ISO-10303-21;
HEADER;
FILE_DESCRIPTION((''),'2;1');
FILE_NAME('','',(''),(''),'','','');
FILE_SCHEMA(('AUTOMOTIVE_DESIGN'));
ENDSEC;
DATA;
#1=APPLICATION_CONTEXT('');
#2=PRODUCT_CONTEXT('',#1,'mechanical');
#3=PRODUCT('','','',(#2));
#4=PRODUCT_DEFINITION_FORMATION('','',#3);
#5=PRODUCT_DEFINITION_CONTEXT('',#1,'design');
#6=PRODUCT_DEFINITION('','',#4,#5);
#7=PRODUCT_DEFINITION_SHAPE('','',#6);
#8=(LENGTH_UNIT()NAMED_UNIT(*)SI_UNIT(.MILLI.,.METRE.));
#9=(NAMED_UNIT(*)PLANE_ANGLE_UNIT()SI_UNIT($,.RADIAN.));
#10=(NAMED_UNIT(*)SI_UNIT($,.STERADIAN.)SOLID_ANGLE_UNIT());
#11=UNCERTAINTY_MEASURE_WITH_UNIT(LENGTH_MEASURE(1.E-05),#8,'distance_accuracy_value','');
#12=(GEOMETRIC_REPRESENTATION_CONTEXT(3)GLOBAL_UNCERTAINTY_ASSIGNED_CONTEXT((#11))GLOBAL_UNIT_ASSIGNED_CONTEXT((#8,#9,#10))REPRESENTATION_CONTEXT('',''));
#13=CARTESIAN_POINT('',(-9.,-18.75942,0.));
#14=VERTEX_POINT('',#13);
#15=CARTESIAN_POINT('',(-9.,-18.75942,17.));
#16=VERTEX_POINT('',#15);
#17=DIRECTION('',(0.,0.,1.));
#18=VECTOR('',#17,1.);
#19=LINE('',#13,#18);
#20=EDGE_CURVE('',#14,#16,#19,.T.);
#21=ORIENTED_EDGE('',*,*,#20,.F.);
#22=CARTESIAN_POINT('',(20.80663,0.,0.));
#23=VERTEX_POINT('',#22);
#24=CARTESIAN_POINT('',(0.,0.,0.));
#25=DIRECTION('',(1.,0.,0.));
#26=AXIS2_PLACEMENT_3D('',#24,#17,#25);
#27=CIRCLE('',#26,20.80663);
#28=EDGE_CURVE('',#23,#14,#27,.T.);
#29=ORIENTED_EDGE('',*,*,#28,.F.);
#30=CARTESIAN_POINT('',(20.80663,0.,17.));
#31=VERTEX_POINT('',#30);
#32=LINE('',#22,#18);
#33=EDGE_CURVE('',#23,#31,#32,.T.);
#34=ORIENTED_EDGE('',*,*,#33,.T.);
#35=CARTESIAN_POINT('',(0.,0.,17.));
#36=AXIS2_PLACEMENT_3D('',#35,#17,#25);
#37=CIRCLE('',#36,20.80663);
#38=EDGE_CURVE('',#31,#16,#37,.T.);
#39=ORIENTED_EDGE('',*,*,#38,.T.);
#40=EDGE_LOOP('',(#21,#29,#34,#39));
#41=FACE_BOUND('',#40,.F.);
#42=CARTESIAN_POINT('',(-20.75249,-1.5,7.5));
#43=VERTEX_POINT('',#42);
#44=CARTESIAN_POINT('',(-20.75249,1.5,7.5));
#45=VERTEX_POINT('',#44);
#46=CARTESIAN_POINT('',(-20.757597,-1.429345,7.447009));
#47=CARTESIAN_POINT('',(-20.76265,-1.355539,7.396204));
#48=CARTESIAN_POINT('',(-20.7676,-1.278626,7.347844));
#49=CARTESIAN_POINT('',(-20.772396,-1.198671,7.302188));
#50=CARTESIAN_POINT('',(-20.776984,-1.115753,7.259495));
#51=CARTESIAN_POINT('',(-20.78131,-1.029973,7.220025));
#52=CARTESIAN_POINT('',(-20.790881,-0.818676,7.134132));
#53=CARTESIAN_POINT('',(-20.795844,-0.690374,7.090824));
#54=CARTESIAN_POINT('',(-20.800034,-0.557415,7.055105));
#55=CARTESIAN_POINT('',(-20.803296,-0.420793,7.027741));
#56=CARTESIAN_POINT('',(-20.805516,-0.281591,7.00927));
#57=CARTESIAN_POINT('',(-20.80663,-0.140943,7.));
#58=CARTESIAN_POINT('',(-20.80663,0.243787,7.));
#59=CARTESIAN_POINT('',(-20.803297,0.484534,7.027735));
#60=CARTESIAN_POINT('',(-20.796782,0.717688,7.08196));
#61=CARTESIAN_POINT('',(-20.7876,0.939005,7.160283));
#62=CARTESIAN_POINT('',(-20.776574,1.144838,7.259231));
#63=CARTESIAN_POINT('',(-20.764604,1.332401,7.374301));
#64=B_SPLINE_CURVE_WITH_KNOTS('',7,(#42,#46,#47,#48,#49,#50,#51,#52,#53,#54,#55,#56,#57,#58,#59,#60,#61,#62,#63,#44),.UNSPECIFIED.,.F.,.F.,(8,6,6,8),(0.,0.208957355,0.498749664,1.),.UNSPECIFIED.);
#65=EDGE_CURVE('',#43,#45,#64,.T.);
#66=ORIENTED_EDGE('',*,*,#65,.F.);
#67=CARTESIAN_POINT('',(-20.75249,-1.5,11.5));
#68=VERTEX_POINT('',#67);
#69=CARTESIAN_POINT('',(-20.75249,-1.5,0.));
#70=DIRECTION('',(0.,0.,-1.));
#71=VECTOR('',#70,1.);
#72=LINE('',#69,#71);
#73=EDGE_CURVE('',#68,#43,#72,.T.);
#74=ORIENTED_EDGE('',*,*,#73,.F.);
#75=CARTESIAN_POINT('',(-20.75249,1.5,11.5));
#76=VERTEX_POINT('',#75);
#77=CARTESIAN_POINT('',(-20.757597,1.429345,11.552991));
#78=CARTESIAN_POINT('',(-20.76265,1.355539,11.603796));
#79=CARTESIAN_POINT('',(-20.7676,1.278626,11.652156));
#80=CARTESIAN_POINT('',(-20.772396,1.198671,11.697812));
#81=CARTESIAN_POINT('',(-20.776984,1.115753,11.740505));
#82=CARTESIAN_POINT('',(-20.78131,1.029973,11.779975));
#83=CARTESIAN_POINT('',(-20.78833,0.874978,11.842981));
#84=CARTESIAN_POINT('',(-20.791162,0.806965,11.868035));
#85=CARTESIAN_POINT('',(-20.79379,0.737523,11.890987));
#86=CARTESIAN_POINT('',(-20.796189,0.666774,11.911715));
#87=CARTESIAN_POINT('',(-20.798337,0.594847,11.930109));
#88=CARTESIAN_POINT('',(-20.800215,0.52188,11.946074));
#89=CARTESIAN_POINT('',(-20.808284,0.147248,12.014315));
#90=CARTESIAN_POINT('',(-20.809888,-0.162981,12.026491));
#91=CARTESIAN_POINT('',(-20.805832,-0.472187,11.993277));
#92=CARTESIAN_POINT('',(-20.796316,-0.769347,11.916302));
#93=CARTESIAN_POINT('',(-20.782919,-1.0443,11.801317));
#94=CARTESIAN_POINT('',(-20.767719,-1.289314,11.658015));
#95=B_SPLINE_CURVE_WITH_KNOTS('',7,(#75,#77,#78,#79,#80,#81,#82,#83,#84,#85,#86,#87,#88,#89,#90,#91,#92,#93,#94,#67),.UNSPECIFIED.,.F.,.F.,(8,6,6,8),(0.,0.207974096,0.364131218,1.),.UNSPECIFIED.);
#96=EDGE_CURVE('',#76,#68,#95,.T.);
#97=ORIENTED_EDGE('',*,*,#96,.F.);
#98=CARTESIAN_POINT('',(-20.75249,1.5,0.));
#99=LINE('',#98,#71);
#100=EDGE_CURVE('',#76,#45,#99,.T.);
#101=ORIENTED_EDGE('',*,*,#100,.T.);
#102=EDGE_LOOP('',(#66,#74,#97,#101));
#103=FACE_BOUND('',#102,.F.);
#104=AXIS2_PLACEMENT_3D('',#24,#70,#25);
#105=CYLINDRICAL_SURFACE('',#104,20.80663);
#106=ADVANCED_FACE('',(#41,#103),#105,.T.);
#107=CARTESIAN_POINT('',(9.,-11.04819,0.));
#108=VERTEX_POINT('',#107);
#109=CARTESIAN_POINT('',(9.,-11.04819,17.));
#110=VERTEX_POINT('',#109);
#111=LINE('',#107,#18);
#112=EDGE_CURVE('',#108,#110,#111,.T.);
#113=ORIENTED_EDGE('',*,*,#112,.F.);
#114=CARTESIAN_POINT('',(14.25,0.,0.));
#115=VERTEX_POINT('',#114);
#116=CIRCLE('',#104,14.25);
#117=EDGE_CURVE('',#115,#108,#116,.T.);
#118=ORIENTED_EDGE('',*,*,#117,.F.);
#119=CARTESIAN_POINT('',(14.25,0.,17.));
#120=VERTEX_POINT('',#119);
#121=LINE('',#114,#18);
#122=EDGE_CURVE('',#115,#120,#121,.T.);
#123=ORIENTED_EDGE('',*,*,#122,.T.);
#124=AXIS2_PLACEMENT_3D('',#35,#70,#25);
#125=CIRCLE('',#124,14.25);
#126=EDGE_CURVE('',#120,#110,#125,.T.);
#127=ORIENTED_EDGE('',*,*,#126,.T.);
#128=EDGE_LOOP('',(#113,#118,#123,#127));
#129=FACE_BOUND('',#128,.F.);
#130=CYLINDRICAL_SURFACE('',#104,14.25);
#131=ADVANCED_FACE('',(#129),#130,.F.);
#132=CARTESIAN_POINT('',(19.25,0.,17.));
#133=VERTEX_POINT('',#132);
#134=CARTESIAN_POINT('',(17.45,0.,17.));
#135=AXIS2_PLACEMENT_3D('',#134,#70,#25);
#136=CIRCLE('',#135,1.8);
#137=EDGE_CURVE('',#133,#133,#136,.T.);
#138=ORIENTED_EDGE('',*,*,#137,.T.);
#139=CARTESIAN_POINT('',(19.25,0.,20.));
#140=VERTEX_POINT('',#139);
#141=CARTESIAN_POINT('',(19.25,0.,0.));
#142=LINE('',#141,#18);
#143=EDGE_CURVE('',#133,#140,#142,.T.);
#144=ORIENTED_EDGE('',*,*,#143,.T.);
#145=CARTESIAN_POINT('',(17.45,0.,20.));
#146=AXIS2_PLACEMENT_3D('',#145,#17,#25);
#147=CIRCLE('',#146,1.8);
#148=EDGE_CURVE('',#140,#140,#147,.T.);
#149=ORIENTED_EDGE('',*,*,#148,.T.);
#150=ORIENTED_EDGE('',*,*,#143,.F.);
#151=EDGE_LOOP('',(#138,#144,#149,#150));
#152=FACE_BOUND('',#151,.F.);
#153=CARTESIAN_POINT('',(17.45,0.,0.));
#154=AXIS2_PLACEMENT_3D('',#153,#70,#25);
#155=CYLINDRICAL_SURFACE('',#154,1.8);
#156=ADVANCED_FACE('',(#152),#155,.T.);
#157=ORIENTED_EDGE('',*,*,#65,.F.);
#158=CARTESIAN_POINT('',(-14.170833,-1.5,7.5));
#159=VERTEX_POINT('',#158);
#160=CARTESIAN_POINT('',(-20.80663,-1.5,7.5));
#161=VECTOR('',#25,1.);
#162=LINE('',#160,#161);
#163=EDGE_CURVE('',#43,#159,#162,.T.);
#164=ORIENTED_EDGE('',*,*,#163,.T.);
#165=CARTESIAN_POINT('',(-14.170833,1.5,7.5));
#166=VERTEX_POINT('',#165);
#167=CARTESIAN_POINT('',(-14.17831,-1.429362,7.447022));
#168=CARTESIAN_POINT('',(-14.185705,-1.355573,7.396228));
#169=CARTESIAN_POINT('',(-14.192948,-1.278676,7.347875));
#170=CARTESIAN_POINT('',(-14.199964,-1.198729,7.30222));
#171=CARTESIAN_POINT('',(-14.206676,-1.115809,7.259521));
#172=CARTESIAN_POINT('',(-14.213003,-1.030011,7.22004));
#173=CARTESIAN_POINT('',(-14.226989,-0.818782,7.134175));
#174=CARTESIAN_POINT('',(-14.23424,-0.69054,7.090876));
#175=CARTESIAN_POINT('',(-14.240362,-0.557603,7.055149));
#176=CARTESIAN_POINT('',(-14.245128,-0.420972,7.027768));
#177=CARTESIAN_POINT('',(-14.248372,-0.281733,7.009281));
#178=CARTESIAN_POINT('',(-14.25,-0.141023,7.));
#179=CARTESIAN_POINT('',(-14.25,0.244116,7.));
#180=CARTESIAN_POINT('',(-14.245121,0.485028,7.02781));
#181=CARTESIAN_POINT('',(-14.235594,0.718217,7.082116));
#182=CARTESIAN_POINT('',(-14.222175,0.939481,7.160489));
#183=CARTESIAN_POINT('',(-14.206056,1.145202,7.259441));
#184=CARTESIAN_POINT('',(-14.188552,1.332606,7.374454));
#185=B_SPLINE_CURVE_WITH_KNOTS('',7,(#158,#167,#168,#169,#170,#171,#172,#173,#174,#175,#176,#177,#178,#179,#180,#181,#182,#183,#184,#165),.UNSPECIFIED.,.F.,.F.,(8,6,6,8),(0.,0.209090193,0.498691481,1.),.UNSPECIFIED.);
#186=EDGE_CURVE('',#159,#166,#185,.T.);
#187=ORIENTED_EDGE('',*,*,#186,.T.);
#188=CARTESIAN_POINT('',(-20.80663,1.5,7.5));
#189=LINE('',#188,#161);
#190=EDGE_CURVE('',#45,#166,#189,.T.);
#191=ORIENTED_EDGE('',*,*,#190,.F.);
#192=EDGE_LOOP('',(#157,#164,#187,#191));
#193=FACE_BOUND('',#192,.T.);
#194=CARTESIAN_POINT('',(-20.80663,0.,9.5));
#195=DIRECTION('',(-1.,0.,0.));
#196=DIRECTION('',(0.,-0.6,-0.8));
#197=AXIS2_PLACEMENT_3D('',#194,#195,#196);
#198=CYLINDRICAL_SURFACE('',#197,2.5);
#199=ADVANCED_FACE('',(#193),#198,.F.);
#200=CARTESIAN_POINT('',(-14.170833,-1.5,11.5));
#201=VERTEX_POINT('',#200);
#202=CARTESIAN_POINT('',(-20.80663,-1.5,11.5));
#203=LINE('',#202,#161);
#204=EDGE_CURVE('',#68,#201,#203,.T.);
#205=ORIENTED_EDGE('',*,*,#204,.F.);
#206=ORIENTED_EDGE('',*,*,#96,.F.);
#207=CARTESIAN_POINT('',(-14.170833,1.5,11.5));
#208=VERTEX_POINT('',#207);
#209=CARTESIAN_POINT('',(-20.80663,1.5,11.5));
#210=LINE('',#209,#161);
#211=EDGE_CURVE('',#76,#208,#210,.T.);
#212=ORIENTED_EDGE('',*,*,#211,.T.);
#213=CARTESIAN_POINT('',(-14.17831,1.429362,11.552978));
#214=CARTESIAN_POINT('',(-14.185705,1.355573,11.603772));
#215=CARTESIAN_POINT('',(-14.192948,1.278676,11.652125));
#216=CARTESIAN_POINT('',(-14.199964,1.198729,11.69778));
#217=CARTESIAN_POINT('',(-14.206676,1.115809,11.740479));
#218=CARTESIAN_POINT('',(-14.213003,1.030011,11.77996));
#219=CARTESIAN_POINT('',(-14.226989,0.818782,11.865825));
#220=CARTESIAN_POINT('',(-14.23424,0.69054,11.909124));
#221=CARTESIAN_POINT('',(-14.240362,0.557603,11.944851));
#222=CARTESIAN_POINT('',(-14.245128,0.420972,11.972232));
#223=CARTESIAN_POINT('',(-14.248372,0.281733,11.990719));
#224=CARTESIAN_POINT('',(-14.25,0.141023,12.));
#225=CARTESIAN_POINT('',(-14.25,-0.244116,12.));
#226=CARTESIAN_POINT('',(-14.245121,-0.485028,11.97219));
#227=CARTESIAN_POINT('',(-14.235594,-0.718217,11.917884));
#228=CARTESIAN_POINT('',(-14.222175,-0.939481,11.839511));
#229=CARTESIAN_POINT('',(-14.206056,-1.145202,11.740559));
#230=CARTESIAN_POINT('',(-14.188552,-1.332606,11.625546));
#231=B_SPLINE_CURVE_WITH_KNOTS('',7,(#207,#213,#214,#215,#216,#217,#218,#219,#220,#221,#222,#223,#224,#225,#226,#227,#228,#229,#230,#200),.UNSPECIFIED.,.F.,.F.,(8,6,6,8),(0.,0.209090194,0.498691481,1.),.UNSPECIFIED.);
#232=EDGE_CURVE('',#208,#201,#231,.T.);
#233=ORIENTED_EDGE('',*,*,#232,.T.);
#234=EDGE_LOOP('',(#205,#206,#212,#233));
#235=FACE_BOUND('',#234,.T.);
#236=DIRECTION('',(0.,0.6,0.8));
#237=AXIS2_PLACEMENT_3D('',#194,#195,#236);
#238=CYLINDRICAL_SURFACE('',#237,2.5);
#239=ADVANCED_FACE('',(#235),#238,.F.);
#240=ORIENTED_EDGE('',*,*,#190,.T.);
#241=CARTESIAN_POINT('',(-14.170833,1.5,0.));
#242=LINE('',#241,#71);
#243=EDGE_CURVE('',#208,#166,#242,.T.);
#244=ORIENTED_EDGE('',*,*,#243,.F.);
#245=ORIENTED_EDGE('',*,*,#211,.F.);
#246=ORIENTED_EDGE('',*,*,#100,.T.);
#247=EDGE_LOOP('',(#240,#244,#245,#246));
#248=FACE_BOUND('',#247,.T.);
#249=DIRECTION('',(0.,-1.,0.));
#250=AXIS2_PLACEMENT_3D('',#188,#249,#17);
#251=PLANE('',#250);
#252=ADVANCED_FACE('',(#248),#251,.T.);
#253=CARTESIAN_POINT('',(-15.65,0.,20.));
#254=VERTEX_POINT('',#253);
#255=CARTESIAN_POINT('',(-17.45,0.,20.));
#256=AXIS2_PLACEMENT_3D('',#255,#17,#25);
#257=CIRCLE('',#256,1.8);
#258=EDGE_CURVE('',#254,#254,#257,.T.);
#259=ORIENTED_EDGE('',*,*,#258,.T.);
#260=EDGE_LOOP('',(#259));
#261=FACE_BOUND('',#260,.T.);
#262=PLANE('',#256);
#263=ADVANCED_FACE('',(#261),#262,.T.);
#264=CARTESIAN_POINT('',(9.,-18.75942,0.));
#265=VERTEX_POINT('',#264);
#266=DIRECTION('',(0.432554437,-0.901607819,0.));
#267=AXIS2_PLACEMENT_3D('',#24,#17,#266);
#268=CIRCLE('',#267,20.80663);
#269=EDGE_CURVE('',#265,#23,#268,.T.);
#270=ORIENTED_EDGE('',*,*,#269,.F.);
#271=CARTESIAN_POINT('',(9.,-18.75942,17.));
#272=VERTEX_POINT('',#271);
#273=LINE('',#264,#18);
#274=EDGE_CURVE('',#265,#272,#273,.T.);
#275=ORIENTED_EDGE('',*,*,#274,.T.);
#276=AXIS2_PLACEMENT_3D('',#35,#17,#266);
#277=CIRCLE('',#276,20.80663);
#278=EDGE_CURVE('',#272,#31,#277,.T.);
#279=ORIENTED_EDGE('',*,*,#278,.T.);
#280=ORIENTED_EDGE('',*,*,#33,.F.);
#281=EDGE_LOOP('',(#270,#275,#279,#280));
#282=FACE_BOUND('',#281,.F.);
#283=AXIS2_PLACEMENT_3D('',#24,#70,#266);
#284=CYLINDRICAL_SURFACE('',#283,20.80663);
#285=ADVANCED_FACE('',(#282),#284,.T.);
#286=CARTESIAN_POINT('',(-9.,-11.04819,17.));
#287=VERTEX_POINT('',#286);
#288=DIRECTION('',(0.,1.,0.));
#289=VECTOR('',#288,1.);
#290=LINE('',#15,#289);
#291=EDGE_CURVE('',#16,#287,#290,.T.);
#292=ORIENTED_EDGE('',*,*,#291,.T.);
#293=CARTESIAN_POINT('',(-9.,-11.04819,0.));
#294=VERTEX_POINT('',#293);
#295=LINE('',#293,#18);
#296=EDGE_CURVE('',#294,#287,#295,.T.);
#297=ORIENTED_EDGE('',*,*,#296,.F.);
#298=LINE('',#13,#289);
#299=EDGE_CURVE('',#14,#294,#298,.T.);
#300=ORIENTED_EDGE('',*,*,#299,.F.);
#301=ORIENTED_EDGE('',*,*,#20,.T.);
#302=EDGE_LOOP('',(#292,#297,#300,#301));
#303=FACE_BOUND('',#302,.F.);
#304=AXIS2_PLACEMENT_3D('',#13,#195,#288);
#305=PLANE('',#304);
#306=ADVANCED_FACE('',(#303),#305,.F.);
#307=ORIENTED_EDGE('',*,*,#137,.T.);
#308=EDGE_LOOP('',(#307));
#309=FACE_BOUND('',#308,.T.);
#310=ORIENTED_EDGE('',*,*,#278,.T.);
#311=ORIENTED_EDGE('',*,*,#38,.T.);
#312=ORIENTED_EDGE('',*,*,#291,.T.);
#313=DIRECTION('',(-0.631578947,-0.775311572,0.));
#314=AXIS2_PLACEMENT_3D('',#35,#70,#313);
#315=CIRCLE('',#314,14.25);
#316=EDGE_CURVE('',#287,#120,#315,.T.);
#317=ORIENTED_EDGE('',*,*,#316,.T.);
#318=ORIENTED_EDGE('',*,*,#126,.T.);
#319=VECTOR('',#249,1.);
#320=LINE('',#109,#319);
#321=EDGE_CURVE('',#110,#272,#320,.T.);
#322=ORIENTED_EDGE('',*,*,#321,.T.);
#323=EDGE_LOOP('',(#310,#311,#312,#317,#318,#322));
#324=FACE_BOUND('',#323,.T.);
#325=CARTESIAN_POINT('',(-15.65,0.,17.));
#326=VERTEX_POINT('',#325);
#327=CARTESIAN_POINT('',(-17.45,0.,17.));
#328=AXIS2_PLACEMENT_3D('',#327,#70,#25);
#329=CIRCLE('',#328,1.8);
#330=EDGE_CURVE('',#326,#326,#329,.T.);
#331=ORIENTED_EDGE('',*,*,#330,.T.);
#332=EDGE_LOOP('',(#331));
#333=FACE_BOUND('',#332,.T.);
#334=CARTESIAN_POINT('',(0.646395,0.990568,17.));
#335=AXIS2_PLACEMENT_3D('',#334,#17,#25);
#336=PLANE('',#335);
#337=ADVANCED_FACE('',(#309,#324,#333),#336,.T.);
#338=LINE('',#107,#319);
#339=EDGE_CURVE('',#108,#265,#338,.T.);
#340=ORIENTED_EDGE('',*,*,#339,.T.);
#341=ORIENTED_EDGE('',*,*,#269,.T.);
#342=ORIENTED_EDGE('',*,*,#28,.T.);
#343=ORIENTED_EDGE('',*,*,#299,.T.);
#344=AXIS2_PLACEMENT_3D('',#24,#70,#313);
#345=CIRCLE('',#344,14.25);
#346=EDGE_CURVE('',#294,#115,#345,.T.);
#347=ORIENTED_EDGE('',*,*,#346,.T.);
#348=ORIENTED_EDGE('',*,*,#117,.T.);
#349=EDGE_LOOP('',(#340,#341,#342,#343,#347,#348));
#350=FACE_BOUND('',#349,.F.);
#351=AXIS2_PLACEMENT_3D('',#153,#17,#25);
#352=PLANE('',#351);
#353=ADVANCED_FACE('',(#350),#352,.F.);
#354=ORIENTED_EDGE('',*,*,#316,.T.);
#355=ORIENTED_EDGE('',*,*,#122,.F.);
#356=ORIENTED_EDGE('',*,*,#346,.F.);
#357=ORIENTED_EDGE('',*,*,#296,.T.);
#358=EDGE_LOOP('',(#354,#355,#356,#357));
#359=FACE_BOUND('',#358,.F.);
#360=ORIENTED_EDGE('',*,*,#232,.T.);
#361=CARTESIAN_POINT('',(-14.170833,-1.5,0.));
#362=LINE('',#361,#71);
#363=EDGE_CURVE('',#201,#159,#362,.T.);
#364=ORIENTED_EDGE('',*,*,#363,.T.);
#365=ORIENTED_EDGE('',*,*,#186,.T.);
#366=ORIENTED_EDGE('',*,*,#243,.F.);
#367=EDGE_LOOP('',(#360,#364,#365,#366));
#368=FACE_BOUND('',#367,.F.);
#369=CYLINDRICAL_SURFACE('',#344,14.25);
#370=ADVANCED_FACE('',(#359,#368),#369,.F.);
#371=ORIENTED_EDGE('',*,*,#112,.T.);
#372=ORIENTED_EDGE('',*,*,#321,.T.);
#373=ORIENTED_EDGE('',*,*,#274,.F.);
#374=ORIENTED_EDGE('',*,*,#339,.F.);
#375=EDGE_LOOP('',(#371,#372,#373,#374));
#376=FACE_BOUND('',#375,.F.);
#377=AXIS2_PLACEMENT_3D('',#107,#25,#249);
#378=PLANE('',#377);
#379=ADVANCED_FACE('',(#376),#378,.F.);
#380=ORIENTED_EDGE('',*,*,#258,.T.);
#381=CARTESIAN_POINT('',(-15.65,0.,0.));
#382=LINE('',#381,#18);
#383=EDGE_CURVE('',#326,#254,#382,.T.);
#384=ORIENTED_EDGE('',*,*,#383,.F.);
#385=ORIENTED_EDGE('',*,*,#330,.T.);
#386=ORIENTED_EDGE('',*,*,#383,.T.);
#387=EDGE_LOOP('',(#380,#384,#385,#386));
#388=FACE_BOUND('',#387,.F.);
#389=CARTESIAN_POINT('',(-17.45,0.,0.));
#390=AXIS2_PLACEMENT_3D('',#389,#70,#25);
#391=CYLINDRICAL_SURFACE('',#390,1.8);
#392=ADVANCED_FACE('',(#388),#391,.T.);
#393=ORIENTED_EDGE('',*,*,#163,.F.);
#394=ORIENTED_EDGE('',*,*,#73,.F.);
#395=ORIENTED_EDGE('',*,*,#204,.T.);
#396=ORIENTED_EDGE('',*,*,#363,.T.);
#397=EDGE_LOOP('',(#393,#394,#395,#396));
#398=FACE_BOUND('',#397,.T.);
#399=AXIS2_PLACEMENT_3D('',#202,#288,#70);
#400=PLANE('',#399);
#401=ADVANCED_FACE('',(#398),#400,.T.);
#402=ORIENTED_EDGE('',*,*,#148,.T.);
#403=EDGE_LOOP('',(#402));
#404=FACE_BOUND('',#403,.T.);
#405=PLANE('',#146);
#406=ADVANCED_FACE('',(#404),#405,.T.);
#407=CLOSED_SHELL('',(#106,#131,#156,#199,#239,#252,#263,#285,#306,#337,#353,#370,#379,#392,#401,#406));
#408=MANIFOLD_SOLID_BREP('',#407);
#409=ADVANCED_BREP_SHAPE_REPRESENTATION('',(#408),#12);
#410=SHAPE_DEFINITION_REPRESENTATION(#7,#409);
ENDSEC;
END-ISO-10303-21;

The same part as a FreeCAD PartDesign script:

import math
import FreeCAD as App
import Part
import Sketcher
from FreeCAD import Vector
Q = App.Units.Quantity

doc = App.newDocument("Part")
body = doc.addObject("PartDesign::Body", "Body")

# Sketch on XY plane
sketch1 = doc.addObject("Sketcher::SketchObject", "Sketch")
body.addObject(sketch1)
sketch1.AttachmentSupport = (doc.XY_Plane, [""])
sketch1.MapMode = "FlatFace"
sketch1.addGeometry(Part.ArcOfCircle(Part.Circle(Vector(0, 0, 0), Vector(0, 0, 1), 14), math.radians(0), math.radians(231)), False)
sketch1.addGeometry(Part.ArcOfCircle(Part.Circle(Vector(0, 0, 0), Vector(0, 0, 1), 14), math.radians(-51), math.radians(0)), False)
sketch1.addGeometry(Part.LineSegment(Vector(9, -11, 0), Vector(9, -19, 0)), False)
sketch1.addGeometry(Part.ArcOfCircle(Part.Circle(Vector(0, 0, 0), Vector(0, 0, 1), 21), math.radians(-64), math.radians(0)), False)
sketch1.addGeometry(Part.ArcOfCircle(Part.Circle(Vector(0, 0, 0), Vector(0, 0, 1), 21), math.radians(0), math.radians(244)), False)
sketch1.addGeometry(Part.LineSegment(Vector(-9, -19, 0), Vector(-9, -11, 0)), False)
sketch1.addConstraint(Sketcher.Constraint("Tangent", 0, 1, 1, 2))
sketch1.addConstraint(Sketcher.Constraint("Coincident", 1, 1, 2, 1))
sketch1.addConstraint(Sketcher.Constraint("Coincident", 2, 2, 3, 1))
sketch1.addConstraint(Sketcher.Constraint("Tangent", 3, 2, 4, 1))
sketch1.addConstraint(Sketcher.Constraint("Coincident", 4, 2, 5, 1))
sketch1.addConstraint(Sketcher.Constraint("Coincident", 5, 2, 0, 2))
sketch1.addConstraint(Sketcher.Constraint("Vertical", 2))
sketch1.addConstraint(Sketcher.Constraint("Vertical", 5))
sketch1.addConstraint(Sketcher.Constraint("Coincident", 0, 3, -1, 1))
sketch1.addConstraint(Sketcher.Constraint("Coincident", 3, 3, -1, 1))
sketch1.addConstraint(Sketcher.Constraint("Equal", 0, 1))
sketch1.addConstraint(Sketcher.Constraint("Equal", 3, 4))
sketch1.addConstraint(Sketcher.Constraint("PointOnObject", 0, 1, -1))
sketch1.addConstraint(Sketcher.Constraint("PointOnObject", 3, 2, -1))
sketch1.addConstraint(Sketcher.Constraint("Horizontal", 2, 2, 4, 2))
sketch1.addConstraint(Sketcher.Constraint("Radius", 0, Q("14.25 mm")))
sketch1.addConstraint(Sketcher.Constraint("DistanceX", -1, 1, 1, 1, Q("9 mm")))
sketch1.addConstraint(Sketcher.Constraint("Radius", 3, Q("20.80663 mm")))
pad1 = doc.addObject("PartDesign::Pad", "Pad")
body.addObject(pad1)
pad1.Profile = sketch1
pad1.Length = 17

# Sketch on XY plane
sketch2 = doc.addObject("Sketcher::SketchObject", "Sketch001")
body.addObject(sketch2)
sketch2.AttachmentSupport = (doc.XY_Plane, [""])
sketch2.MapMode = "FlatFace"
sketch2.addGeometry(Part.Circle(Vector(17.4, 0, 0), Vector(0, 0, 1), 1.8), False)
sketch2.addGeometry(Part.Circle(Vector(-17.4, 0, 0), Vector(0, 0, 1), 1.8), False)
sketch2.addConstraint(Sketcher.Constraint("Equal", 0, 1))
sketch2.addConstraint(Sketcher.Constraint("Symmetric", 0, 3, 1, 3, -1, 1))
sketch2.addConstraint(Sketcher.Constraint("PointOnObject", 0, 3, -1))
sketch2.addConstraint(Sketcher.Constraint("Diameter", 0, Q("3.6 mm")))
sketch2.addConstraint(Sketcher.Constraint("DistanceX", 1, 3, 0, 3, Q("34.9 mm")))
pad2 = doc.addObject("PartDesign::Pad", "Pad001")
body.addObject(pad2)
pad2.Profile = sketch2
pad2.Length = 20

# Sketch on YZ plane
sketch3 = doc.addObject("Sketcher::SketchObject", "Sketch002")
body.addObject(sketch3)
sketch3.AttachmentSupport = (doc.YZ_Plane, [""])
sketch3.MapMode = "FlatFace"
sketch3.AttachmentOffset = App.Placement(Vector(0, 0, -20.80663), App.Rotation())
sketch3.addGeometry(Part.LineSegment(Vector(1.5, 7.5, 0), Vector(1.5, 11.5, 0)), False)
sketch3.addGeometry(Part.ArcOfCircle(Part.Circle(Vector(0, 9.5, 0), Vector(0, 0, 1), 2.5), math.radians(53), math.radians(127)), False)
sketch3.addGeometry(Part.LineSegment(Vector(-1.5, 11.5, 0), Vector(-1.5, 7.5, 0)), False)
sketch3.addGeometry(Part.ArcOfCircle(Part.Circle(Vector(0, 9.5, 0), Vector(0, 0, 1), 2.5), math.radians(-127), math.radians(-53)), False)
sketch3.addConstraint(Sketcher.Constraint("Coincident", 0, 2, 1, 1))
sketch3.addConstraint(Sketcher.Constraint("Coincident", 1, 2, 2, 1))
sketch3.addConstraint(Sketcher.Constraint("Coincident", 2, 2, 3, 1))
sketch3.addConstraint(Sketcher.Constraint("Coincident", 3, 2, 0, 1))
sketch3.addConstraint(Sketcher.Constraint("Vertical", 0))
sketch3.addConstraint(Sketcher.Constraint("Vertical", 2))
sketch3.addConstraint(Sketcher.Constraint("Coincident", 3, 3, 1, 3))
sketch3.addConstraint(Sketcher.Constraint("Equal", 1, 3))
sketch3.addConstraint(Sketcher.Constraint("Symmetric", 0, 2, 1, 2, -2))
sketch3.addConstraint(Sketcher.Constraint("Radius", 1, Q("2.5 mm")))
sketch3.addConstraint(Sketcher.Constraint("DistanceY", 0, 1, 0, 2, Q("4 mm")))
sketch3.addConstraint(Sketcher.Constraint("DistanceY", -1, 1, 1, 3, Q("9.5 mm")))
pocket1 = doc.addObject("PartDesign::Pocket", "Pocket")
body.addObject(pocket1)
pocket1.Profile = sketch3
pocket1.Length = 6.636797
pocket1.Reversed = True

doc.recompute()
